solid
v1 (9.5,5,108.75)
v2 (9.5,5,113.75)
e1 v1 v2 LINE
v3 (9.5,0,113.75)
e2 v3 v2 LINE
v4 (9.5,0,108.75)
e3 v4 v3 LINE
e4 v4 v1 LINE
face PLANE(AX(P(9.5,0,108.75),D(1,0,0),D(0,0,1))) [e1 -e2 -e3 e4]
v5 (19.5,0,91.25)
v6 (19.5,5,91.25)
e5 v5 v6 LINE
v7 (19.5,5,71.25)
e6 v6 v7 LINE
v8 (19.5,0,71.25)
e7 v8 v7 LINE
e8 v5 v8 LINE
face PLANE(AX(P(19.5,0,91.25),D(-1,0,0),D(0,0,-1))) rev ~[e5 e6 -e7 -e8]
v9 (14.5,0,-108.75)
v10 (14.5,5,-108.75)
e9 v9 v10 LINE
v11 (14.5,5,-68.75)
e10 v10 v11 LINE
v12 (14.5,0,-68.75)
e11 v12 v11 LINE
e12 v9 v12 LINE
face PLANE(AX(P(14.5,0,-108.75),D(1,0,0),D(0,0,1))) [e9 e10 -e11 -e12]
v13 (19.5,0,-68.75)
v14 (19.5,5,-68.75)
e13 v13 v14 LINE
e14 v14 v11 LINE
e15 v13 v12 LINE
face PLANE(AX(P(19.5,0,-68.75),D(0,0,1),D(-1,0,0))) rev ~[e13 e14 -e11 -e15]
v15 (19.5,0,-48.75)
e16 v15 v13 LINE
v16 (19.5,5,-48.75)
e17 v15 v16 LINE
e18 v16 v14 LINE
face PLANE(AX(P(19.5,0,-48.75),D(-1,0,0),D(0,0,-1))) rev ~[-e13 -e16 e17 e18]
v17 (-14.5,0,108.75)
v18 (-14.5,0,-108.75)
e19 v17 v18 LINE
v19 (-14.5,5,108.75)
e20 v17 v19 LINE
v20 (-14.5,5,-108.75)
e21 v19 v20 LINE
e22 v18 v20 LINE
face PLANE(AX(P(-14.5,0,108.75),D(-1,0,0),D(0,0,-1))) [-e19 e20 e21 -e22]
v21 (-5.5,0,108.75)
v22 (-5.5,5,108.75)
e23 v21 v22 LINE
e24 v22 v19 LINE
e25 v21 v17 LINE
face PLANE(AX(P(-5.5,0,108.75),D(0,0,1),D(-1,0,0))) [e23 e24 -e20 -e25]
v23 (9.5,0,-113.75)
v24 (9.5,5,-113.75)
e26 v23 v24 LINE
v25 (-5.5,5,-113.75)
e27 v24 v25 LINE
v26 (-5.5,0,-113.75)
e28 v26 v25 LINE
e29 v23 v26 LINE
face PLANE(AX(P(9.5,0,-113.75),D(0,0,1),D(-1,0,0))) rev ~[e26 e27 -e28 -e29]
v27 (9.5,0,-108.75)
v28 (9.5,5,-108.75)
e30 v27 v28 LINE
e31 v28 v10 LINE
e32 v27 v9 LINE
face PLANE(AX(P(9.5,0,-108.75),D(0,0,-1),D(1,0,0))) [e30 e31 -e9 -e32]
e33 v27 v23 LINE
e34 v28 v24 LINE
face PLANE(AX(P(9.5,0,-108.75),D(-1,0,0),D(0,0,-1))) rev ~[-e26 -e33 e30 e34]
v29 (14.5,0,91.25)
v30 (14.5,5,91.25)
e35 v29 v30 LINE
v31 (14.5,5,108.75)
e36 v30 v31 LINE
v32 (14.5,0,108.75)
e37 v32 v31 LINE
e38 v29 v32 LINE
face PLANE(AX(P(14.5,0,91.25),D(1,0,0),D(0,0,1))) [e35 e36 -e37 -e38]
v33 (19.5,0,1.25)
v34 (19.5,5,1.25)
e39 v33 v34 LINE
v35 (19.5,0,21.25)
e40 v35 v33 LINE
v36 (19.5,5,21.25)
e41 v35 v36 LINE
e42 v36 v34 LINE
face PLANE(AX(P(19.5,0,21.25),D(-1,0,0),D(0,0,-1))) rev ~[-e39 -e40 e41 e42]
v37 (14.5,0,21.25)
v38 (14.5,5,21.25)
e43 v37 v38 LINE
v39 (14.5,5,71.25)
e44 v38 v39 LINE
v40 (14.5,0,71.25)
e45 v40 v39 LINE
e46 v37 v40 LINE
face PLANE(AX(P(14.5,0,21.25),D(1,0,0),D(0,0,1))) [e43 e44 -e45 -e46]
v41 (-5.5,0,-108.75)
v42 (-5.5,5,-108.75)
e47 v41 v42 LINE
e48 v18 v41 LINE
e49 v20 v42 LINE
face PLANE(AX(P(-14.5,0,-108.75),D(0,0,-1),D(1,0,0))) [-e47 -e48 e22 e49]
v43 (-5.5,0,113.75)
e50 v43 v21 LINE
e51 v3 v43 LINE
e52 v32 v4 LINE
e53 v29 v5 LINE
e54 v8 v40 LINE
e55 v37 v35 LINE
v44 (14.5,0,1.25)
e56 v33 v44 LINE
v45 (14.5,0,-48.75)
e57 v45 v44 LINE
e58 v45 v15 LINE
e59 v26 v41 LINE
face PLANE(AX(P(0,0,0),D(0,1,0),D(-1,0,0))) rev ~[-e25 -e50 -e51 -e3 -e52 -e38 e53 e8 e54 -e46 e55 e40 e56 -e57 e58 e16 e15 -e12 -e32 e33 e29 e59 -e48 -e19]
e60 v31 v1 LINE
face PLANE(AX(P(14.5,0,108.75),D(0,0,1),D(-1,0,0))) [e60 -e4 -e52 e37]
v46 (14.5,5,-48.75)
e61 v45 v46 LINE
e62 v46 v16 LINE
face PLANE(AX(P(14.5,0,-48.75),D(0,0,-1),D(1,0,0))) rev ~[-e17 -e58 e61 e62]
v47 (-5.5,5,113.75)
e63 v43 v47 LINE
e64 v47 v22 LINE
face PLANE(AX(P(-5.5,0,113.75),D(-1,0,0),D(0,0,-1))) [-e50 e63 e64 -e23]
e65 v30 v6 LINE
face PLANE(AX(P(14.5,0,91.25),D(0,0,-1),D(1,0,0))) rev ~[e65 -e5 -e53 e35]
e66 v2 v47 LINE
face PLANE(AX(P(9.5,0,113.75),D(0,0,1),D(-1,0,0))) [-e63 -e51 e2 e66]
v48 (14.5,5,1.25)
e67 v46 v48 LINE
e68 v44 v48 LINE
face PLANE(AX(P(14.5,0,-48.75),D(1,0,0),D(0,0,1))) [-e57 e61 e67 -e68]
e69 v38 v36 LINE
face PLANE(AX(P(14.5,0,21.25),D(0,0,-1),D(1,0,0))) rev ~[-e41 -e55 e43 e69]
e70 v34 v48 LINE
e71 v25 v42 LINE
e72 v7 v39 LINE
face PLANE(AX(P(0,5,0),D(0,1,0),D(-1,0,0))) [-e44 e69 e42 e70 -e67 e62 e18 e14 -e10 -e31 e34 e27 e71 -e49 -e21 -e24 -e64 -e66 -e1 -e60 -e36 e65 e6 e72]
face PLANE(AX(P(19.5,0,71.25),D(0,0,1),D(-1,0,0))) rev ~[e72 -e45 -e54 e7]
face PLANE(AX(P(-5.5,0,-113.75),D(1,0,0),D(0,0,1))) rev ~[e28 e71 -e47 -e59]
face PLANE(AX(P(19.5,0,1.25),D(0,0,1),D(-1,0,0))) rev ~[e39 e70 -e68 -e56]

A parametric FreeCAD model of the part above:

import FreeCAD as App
import Part
import Sketcher
Q = App.Units.Quantity

doc = App.newDocument("Part")
params = doc.addObject("Spreadsheet::Sheet", "Params")
for row, (alias, value) in enumerate([
    ("sketch1_width", "5 mm"),
    ("sketch1_width2", "15 mm"),
    ("sketch1_width3", "9 mm"),
    ("sketch1_height", "20 mm"),
    ("sketch1_height2", "50 mm"),
    ("pad1_length", "5 mm"),
], start=1):
    params.set(f"A{row}", alias)
    params.set(f"B{row}", "=" + value)
    params.setAlias(f"B{row}", alias)

body = doc.addObject("PartDesign::Body", "Body")

sketch1 = body.newObject("Sketcher::SketchObject", "Sketch")
sketch1.AttachmentSupport = (doc.getObject("XZ_Plane"), [""])
sketch1.MapMode = "FlatFace"
sketch1.addGeometry([
    Part.LineSegment(App.Vector(10, 109, 0), App.Vector(14, 109, 0)),
    Part.LineSegment(App.Vector(14, 109, 0), App.Vector(14, 91, 0)),
    Part.LineSegment(App.Vector(14, 91, 0), App.Vector(20, 91, 0)),
    Part.LineSegment(App.Vector(20, 91, 0), App.Vector(20, 71, 0)),
    Part.LineSegment(App.Vector(20, 71, 0), App.Vector(14, 71, 0)),
    Part.LineSegment(App.Vector(14, 71, 0), App.Vector(14, 21, 0)),
    Part.LineSegment(App.Vector(14, 21, 0), App.Vector(20, 21, 0)),
    Part.LineSegment(App.Vector(20, 21, 0), App.Vector(20, 1, 0)),
    Part.LineSegment(App.Vector(20, 1, 0), App.Vector(14, 1, 0)),
    Part.LineSegment(App.Vector(14, 1, 0), App.Vector(14, -49, 0)),
    Part.LineSegment(App.Vector(14, -49, 0), App.Vector(20, -49, 0)),
    Part.LineSegment(App.Vector(20, -49, 0), App.Vector(20, -69, 0)),
    Part.LineSegment(App.Vector(20, -69, 0), App.Vector(14, -69, 0)),
    Part.LineSegment(App.Vector(14, -69, 0), App.Vector(14, -109, 0)),
    Part.LineSegment(App.Vector(14, -109, 0), App.Vector(10, -109, 0)),
    Part.LineSegment(App.Vector(10, -109, 0), App.Vector(10, -114, 0)),
    Part.LineSegment(App.Vector(10, -114, 0), App.Vector(-6, -114, 0)),
    Part.LineSegment(App.Vector(-6, -114, 0), App.Vector(-6, -109, 0)),
    Part.LineSegment(App.Vector(-6, -109, 0), App.Vector(-14, -109, 0)),
    Part.LineSegment(App.Vector(-14, -109, 0), App.Vector(-14, 109, 0)),
    Part.LineSegment(App.Vector(-14, 109, 0), App.Vector(-6, 109, 0)),
    Part.LineSegment(App.Vector(-6, 109, 0), App.Vector(-6, 114, 0)),
    Part.LineSegment(App.Vector(-6, 114, 0), App.Vector(10, 114, 0)),
    Part.LineSegment(App.Vector(10, 114, 0), App.Vector(10, 109, 0)),
], False)
sketch1.addConstraint([
    Sketcher.Constraint("Coincident", 0, 2, 1, 1),
    Sketcher.Constraint("Coincident", 1, 2, 2, 1),
    Sketcher.Constraint("Coincident", 2, 2, 3, 1),
    Sketcher.Constraint("Coincident", 3, 2, 4, 1),
    Sketcher.Constraint("Coincident", 4, 2, 5, 1),
    Sketcher.Constraint("Coincident", 5, 2, 6, 1),
    Sketcher.Constraint("Coincident", 6, 2, 7, 1),
    Sketcher.Constraint("Coincident", 7, 2, 8, 1),
    Sketcher.Constraint("Coincident", 8, 2, 9, 1),
    Sketcher.Constraint("Coincident", 9, 2, 10, 1),
    Sketcher.Constraint("Coincident", 10, 2, 11, 1),
    Sketcher.Constraint("Coincident", 11, 2, 12, 1),
    Sketcher.Constraint("Coincident", 12, 2, 13, 1),
    Sketcher.Constraint("Coincident", 13, 2, 14, 1),
    Sketcher.Constraint("Coincident", 14, 2, 15, 1),
    Sketcher.Constraint("Coincident", 15, 2, 16, 1),
    Sketcher.Constraint("Coincident", 16, 2, 17, 1),
    Sketcher.Constraint("Coincident", 17, 2, 18, 1),
    Sketcher.Constraint("Coincident", 18, 2, 19, 1),
    Sketcher.Constraint("Coincident", 19, 2, 20, 1),
    Sketcher.Constraint("Coincident", 20, 2, 21, 1),
    Sketcher.Constraint("Coincident", 21, 2, 22, 1),
    Sketcher.Constraint("Coincident", 22, 2, 23, 1),
    Sketcher.Constraint("Coincident", 23, 2, 0, 1),
    Sketcher.Constraint("Horizontal", 0),
    Sketcher.Constraint("Vertical", 1),
    Sketcher.Constraint("Horizontal", 2),
    Sketcher.Constraint("Vertical", 3),
    Sketcher.Constraint("Horizontal", 4),
    Sketcher.Constraint("Vertical", 5),
    Sketcher.Constraint("Horizontal", 6),
    Sketcher.Constraint("Vertical", 7),
    Sketcher.Constraint("Horizontal", 8),
    Sketcher.Constraint("Vertical", 9),
    Sketcher.Constraint("Horizontal", 10),
    Sketcher.Constraint("Vertical", 11),
    Sketcher.Constraint("Horizontal", 12),
    Sketcher.Constraint("Vertical", 13),
    Sketcher.Constraint("Horizontal", 14),
    Sketcher.Constraint("Vertical", 15),
    Sketcher.Constraint("Horizontal", 16),
    Sketcher.Constraint("Vertical", 17),
    Sketcher.Constraint("Horizontal", 18),
    Sketcher.Constraint("Vertical", 19),
    Sketcher.Constraint("Horizontal", 20),
    Sketcher.Constraint("Vertical", 21),
    Sketcher.Constraint("Horizontal", 22),
    Sketcher.Constraint("Vertical", 23),
    Sketcher.Constraint("Symmetric", 0, 2, 18, 2, -1, 1),
    Sketcher.Constraint("Symmetric", 13, 2, 19, 2, -1, 1),
    Sketcher.Constraint("Symmetric", 17, 2, 20, 2, -1),
    Sketcher.Constraint("Symmetric", 15, 2, 22, 2, -1),
    Sketcher.Constraint("Vertical", 1, 2, 4, 2),
    Sketcher.Constraint("Vertical", 3, 2, 6, 2),
    Sketcher.Constraint("Vertical", 5, 2, 8, 2),
    Sketcher.Constraint("Vertical", 7, 2, 10, 2),
    Sketcher.Constraint("Equal", 0, 2),
    Sketcher.Constraint("Equal", 3, 7),
    Sketcher.Constraint("Equal", 5, 9),
    Sketcher.Constraint("Equal", 7, 11),
    Sketcher.Constraint("Equal", 14, 15),
    Sketcher.Constraint("DistanceX", 0, 1, 0, 2, Q("5 mm")),
    Sketcher.Constraint("DistanceX", 16, 2, 16, 1, Q("15 mm")),
    Sketcher.Constraint("DistanceX", 18, 2, 18, 1, Q("9 mm")),
    Sketcher.Constraint("DistanceY", 3, 2, 3, 1, Q("20 mm")),
    Sketcher.Constraint("DistanceY", 5, 2, 5, 1, Q("50 mm")),
    Sketcher.Constraint("DistanceY", 13, 2, 13, 1, Q("40 mm")),
    Sketcher.Constraint("DistanceY", 1, 2, 1, 1, Q("17.5 mm")),
])
sketch1.setExpression("Constraints[61]", "Params.sketch1_width")
sketch1.setExpression("Constraints[62]", "Params.sketch1_width2")
sketch1.setExpression("Constraints[63]", "Params.sketch1_width3")
sketch1.setExpression("Constraints[64]", "Params.sketch1_height")
sketch1.setExpression("Constraints[65]", "Params.sketch1_height2")
pad1 = body.newObject("PartDesign::Pad", "Pad")
pad1.Profile = sketch1
pad1.setExpression("Length", "Params.pad1_length")
pad1.Reversed = True

doc.recompute()
